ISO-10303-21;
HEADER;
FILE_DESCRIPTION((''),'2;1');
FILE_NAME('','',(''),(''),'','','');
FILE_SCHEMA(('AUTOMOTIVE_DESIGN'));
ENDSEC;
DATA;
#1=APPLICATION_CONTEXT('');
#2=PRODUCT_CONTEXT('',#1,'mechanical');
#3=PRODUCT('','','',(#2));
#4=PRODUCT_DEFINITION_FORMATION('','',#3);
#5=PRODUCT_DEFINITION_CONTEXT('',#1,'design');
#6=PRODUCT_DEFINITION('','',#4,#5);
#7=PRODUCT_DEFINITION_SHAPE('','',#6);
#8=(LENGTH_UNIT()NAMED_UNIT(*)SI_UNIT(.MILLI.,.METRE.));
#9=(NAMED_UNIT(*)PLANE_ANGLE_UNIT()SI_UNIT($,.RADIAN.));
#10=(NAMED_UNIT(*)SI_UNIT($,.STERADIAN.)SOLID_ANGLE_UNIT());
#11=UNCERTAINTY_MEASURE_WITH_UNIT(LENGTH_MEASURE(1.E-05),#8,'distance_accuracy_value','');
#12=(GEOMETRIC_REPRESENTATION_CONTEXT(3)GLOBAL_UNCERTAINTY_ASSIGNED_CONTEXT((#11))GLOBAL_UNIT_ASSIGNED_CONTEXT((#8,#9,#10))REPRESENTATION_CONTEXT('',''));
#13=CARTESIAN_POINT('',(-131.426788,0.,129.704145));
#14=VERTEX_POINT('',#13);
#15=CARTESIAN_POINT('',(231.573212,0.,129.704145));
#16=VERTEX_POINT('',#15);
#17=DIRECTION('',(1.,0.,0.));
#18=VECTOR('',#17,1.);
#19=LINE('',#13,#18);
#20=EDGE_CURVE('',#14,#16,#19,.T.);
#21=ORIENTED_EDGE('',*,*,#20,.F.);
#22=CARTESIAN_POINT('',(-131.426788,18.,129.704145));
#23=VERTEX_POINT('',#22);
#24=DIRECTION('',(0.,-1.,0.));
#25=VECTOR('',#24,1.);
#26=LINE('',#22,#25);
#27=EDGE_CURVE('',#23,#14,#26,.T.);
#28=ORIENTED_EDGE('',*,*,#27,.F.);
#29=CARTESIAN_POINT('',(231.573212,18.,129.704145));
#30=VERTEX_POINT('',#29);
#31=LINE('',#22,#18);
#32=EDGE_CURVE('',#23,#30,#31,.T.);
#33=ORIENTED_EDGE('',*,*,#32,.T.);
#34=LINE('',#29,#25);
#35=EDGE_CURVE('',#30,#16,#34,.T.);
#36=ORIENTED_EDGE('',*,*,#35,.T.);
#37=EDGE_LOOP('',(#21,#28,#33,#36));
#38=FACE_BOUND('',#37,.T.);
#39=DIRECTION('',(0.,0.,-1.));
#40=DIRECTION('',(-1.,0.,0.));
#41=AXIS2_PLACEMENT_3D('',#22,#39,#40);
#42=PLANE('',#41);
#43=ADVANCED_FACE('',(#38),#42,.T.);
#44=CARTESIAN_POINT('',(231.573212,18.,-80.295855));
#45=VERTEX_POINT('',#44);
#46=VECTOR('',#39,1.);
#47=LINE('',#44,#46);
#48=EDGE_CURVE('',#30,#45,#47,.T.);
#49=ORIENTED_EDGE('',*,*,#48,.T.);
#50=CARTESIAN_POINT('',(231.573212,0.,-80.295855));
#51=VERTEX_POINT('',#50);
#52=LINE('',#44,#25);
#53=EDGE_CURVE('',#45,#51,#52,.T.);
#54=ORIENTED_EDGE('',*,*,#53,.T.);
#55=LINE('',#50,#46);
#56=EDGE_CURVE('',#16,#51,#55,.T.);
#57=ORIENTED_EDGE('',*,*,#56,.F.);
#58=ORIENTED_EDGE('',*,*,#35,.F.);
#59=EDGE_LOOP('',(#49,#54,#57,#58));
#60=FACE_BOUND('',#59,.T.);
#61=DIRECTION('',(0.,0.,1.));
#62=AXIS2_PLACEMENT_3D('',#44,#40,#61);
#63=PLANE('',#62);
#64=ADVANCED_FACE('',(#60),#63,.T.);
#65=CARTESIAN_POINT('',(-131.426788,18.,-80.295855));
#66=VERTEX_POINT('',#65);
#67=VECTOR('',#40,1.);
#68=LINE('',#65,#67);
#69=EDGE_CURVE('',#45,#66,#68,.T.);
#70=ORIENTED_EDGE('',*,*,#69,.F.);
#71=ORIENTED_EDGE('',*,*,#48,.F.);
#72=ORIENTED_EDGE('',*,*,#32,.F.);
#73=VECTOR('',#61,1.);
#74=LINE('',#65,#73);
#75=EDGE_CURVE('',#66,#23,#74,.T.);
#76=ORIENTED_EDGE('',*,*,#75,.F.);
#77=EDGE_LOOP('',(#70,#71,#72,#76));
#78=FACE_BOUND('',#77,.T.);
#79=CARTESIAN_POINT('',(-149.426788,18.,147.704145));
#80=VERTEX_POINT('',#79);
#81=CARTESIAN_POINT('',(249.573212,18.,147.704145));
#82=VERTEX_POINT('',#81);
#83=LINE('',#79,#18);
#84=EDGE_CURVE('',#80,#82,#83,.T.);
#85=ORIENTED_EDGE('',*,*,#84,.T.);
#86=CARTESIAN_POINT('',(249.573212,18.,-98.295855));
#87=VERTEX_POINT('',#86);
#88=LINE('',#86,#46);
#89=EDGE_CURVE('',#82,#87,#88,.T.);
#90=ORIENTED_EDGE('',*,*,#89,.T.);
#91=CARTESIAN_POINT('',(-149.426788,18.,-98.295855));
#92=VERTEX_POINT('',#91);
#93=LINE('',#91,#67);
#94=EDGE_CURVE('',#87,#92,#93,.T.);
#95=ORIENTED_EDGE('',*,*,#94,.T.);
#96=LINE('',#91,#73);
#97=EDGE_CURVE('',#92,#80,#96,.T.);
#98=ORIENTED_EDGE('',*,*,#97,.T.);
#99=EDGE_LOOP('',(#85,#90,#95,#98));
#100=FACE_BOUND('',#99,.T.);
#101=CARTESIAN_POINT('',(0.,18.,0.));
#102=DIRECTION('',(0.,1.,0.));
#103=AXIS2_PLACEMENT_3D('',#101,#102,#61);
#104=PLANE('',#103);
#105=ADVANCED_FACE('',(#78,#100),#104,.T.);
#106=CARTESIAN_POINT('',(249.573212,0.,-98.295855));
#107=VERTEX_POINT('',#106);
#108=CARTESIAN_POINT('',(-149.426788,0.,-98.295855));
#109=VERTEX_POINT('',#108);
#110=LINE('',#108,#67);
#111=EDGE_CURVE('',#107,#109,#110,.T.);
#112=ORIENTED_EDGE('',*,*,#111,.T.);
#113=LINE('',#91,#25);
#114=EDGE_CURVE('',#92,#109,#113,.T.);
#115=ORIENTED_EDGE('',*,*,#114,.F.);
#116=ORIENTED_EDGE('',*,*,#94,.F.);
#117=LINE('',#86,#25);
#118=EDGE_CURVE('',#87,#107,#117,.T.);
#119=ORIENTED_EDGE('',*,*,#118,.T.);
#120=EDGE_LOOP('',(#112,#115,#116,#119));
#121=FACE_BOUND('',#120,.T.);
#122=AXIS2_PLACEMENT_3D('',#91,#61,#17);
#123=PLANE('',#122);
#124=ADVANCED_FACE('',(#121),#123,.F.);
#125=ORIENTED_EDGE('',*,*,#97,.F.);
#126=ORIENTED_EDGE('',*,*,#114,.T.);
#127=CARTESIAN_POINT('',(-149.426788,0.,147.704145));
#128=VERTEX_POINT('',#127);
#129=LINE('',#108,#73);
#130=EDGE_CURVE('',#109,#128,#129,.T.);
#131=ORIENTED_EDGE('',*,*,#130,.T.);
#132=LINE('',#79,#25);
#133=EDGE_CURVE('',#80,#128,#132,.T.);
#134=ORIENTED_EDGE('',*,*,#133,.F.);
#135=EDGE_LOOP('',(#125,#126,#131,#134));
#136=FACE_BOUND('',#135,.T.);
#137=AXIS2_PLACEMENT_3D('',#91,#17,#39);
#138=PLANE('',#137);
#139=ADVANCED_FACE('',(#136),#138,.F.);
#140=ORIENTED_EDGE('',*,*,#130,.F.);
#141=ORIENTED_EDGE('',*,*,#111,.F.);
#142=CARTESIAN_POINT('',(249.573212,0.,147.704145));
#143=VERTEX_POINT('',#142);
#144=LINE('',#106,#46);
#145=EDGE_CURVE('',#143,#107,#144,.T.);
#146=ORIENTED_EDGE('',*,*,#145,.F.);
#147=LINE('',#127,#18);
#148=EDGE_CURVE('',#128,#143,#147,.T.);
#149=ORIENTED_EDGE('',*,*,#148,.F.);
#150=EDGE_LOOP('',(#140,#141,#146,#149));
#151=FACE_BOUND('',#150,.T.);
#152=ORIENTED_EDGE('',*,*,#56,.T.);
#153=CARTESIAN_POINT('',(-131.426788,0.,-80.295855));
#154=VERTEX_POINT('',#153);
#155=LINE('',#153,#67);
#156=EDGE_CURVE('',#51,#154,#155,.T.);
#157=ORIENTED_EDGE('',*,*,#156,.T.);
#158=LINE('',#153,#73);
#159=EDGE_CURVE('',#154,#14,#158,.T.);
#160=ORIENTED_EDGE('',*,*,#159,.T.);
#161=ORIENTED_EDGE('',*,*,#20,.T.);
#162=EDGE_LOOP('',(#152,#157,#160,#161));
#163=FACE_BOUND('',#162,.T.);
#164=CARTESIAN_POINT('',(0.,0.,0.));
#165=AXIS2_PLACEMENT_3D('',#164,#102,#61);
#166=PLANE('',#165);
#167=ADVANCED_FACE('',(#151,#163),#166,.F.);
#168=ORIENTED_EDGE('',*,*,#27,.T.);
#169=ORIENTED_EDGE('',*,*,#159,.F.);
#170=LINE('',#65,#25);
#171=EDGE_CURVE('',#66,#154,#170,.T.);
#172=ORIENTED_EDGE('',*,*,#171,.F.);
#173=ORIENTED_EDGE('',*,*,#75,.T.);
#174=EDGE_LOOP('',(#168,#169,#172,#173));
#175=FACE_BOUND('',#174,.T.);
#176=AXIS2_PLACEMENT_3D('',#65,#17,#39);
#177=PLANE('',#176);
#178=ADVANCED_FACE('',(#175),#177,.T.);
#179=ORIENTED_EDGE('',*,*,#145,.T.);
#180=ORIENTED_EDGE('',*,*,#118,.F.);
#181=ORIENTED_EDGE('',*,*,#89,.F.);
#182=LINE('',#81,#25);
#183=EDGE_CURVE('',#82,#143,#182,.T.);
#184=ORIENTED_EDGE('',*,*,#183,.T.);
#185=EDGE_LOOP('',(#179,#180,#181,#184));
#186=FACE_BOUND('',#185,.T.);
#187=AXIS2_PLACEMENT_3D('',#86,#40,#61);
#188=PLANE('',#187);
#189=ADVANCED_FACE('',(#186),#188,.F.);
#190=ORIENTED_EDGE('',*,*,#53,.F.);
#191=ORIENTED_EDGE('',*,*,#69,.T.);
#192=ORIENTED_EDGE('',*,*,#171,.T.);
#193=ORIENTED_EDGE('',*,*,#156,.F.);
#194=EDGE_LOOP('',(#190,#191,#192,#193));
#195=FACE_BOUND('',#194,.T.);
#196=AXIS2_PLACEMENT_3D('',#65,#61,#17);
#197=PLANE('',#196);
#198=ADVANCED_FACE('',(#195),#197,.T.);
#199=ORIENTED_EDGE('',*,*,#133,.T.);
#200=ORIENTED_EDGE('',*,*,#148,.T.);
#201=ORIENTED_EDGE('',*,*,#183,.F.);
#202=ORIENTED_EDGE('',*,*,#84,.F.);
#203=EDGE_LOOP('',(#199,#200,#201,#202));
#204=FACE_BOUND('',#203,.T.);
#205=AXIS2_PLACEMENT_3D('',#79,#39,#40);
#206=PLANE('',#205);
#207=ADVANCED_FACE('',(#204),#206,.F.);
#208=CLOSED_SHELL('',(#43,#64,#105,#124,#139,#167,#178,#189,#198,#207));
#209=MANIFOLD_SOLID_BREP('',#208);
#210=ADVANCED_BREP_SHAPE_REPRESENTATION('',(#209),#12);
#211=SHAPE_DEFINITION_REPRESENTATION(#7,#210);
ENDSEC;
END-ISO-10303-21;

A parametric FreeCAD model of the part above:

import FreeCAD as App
import Part
import Sketcher
from FreeCAD import Vector


def add_polygon(sketch, points):
    """Adds a closed chain of lines whose ends are joined by coincident constraints."""
    first, n = sketch.GeometryCount, len(points)
    for a, b in zip(points, points[1:] + points[:1]):
        sketch.addGeometry(Part.LineSegment(App.Vector(*a, 0), App.Vector(*b, 0)), False)
    for i in range(n):
        sketch.addConstraint(Sketcher.Constraint("Coincident", first + i, 2, first + (i + 1) % n, 1))

doc = App.newDocument("Part")
body = doc.addObject("PartDesign::Body", "Body")

# Sketch on XZ plane
sketch1 = doc.addObject("Sketcher::SketchObject", "Sketch")
body.addObject(sketch1)
sketch1.AttachmentSupport = (doc.XZ_Plane, [""])
sketch1.MapMode = "FlatFace"
add_polygon(sketch1, [(-149, -98), (-149, 148), (250, 148), (250, -98)])  # lines 0-3
add_polygon(sketch1, [(232, 130), (-131, 130), (-131, -80), (232, -80)])  # lines 4-7
sketch1.addConstraint(Sketcher.Constraint("Vertical", 0))
sketch1.addConstraint(Sketcher.Constraint("Horizontal", 1))
sketch1.addConstraint(Sketcher.Constraint("Vertical", 2))
sketch1.addConstraint(Sketcher.Constraint("Horizontal", 3))
sketch1.addConstraint(Sketcher.Constraint("Horizontal", 4))
sketch1.addConstraint(Sketcher.Constraint("Vertical", 5))
sketch1.addConstraint(Sketcher.Constraint("Horizontal", 6))
sketch1.addConstraint(Sketcher.Constraint("Vertical", 7))
sketch1.addConstraint(Sketcher.Constraint("DistanceX", 1, 1, 1, 2, 399.0))
sketch1.addConstraint(Sketcher.Constraint("DistanceX", 4, 2, 4, 1, 363.0))
sketch1.addConstraint(Sketcher.Constraint("DistanceY", 0, 1, 0, 2, 246.0))
sketch1.addConstraint(Sketcher.Constraint("DistanceY", 5, 2, 5, 1, 210.0))
sketch1.addConstraint(Sketcher.Constraint("DistanceX", 0, 2, 4, 2, 18.0))
sketch1.addConstraint(Sketcher.Constraint("DistanceY", 4, 2, 0, 2, 18.0))
sketch1.addConstraint(Sketcher.Constraint("DistanceX", 0, 2, -1, 1, 149.426788))
sketch1.addConstraint(Sketcher.Constraint("DistanceY", -1, 1, 0, 2, 147.704145))
pad1 = doc.addObject("PartDesign::Pad", "Pad")
body.addObject(pad1)
pad1.Profile = sketch1
pad1.Length = 18
pad1.Reversed = True

doc.recompute()
